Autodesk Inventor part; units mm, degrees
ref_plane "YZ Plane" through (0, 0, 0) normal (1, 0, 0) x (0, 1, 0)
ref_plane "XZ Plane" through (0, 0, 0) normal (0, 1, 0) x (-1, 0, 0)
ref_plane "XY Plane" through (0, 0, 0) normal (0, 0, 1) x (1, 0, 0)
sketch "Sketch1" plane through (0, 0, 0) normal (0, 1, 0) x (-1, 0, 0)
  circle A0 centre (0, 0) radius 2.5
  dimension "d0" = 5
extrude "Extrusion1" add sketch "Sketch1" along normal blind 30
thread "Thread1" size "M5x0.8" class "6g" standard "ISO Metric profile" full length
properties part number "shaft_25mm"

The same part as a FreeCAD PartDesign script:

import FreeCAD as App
import Part
import Sketcher
from FreeCAD import Vector

doc = App.newDocument("Part")
body = doc.addObject("PartDesign::Body", "Body")

# Sketch on XZ plane
sketch1 = body.newObject("Sketcher::SketchObject", "Sketch")
sketch1.AttachmentSupport = (doc.getObject("XZ_Plane"), [""])
sketch1.MapMode = "FlatFace"
sketch1.addGeometry(Part.Circle(Vector(0, 0, 0), Vector(0, 0, 1), 2.5), False)
sketch1.addConstraint(Sketcher.Constraint("Coincident", 0, 3, -1, 1))
sketch1.addConstraint(Sketcher.Constraint("Diameter", 0, 5.0))
pad1 = body.newObject("PartDesign::Pad", "Pad")
pad1.Profile = sketch1
pad1.Length = 30
pad1.Reversed = True

doc.recompute()
